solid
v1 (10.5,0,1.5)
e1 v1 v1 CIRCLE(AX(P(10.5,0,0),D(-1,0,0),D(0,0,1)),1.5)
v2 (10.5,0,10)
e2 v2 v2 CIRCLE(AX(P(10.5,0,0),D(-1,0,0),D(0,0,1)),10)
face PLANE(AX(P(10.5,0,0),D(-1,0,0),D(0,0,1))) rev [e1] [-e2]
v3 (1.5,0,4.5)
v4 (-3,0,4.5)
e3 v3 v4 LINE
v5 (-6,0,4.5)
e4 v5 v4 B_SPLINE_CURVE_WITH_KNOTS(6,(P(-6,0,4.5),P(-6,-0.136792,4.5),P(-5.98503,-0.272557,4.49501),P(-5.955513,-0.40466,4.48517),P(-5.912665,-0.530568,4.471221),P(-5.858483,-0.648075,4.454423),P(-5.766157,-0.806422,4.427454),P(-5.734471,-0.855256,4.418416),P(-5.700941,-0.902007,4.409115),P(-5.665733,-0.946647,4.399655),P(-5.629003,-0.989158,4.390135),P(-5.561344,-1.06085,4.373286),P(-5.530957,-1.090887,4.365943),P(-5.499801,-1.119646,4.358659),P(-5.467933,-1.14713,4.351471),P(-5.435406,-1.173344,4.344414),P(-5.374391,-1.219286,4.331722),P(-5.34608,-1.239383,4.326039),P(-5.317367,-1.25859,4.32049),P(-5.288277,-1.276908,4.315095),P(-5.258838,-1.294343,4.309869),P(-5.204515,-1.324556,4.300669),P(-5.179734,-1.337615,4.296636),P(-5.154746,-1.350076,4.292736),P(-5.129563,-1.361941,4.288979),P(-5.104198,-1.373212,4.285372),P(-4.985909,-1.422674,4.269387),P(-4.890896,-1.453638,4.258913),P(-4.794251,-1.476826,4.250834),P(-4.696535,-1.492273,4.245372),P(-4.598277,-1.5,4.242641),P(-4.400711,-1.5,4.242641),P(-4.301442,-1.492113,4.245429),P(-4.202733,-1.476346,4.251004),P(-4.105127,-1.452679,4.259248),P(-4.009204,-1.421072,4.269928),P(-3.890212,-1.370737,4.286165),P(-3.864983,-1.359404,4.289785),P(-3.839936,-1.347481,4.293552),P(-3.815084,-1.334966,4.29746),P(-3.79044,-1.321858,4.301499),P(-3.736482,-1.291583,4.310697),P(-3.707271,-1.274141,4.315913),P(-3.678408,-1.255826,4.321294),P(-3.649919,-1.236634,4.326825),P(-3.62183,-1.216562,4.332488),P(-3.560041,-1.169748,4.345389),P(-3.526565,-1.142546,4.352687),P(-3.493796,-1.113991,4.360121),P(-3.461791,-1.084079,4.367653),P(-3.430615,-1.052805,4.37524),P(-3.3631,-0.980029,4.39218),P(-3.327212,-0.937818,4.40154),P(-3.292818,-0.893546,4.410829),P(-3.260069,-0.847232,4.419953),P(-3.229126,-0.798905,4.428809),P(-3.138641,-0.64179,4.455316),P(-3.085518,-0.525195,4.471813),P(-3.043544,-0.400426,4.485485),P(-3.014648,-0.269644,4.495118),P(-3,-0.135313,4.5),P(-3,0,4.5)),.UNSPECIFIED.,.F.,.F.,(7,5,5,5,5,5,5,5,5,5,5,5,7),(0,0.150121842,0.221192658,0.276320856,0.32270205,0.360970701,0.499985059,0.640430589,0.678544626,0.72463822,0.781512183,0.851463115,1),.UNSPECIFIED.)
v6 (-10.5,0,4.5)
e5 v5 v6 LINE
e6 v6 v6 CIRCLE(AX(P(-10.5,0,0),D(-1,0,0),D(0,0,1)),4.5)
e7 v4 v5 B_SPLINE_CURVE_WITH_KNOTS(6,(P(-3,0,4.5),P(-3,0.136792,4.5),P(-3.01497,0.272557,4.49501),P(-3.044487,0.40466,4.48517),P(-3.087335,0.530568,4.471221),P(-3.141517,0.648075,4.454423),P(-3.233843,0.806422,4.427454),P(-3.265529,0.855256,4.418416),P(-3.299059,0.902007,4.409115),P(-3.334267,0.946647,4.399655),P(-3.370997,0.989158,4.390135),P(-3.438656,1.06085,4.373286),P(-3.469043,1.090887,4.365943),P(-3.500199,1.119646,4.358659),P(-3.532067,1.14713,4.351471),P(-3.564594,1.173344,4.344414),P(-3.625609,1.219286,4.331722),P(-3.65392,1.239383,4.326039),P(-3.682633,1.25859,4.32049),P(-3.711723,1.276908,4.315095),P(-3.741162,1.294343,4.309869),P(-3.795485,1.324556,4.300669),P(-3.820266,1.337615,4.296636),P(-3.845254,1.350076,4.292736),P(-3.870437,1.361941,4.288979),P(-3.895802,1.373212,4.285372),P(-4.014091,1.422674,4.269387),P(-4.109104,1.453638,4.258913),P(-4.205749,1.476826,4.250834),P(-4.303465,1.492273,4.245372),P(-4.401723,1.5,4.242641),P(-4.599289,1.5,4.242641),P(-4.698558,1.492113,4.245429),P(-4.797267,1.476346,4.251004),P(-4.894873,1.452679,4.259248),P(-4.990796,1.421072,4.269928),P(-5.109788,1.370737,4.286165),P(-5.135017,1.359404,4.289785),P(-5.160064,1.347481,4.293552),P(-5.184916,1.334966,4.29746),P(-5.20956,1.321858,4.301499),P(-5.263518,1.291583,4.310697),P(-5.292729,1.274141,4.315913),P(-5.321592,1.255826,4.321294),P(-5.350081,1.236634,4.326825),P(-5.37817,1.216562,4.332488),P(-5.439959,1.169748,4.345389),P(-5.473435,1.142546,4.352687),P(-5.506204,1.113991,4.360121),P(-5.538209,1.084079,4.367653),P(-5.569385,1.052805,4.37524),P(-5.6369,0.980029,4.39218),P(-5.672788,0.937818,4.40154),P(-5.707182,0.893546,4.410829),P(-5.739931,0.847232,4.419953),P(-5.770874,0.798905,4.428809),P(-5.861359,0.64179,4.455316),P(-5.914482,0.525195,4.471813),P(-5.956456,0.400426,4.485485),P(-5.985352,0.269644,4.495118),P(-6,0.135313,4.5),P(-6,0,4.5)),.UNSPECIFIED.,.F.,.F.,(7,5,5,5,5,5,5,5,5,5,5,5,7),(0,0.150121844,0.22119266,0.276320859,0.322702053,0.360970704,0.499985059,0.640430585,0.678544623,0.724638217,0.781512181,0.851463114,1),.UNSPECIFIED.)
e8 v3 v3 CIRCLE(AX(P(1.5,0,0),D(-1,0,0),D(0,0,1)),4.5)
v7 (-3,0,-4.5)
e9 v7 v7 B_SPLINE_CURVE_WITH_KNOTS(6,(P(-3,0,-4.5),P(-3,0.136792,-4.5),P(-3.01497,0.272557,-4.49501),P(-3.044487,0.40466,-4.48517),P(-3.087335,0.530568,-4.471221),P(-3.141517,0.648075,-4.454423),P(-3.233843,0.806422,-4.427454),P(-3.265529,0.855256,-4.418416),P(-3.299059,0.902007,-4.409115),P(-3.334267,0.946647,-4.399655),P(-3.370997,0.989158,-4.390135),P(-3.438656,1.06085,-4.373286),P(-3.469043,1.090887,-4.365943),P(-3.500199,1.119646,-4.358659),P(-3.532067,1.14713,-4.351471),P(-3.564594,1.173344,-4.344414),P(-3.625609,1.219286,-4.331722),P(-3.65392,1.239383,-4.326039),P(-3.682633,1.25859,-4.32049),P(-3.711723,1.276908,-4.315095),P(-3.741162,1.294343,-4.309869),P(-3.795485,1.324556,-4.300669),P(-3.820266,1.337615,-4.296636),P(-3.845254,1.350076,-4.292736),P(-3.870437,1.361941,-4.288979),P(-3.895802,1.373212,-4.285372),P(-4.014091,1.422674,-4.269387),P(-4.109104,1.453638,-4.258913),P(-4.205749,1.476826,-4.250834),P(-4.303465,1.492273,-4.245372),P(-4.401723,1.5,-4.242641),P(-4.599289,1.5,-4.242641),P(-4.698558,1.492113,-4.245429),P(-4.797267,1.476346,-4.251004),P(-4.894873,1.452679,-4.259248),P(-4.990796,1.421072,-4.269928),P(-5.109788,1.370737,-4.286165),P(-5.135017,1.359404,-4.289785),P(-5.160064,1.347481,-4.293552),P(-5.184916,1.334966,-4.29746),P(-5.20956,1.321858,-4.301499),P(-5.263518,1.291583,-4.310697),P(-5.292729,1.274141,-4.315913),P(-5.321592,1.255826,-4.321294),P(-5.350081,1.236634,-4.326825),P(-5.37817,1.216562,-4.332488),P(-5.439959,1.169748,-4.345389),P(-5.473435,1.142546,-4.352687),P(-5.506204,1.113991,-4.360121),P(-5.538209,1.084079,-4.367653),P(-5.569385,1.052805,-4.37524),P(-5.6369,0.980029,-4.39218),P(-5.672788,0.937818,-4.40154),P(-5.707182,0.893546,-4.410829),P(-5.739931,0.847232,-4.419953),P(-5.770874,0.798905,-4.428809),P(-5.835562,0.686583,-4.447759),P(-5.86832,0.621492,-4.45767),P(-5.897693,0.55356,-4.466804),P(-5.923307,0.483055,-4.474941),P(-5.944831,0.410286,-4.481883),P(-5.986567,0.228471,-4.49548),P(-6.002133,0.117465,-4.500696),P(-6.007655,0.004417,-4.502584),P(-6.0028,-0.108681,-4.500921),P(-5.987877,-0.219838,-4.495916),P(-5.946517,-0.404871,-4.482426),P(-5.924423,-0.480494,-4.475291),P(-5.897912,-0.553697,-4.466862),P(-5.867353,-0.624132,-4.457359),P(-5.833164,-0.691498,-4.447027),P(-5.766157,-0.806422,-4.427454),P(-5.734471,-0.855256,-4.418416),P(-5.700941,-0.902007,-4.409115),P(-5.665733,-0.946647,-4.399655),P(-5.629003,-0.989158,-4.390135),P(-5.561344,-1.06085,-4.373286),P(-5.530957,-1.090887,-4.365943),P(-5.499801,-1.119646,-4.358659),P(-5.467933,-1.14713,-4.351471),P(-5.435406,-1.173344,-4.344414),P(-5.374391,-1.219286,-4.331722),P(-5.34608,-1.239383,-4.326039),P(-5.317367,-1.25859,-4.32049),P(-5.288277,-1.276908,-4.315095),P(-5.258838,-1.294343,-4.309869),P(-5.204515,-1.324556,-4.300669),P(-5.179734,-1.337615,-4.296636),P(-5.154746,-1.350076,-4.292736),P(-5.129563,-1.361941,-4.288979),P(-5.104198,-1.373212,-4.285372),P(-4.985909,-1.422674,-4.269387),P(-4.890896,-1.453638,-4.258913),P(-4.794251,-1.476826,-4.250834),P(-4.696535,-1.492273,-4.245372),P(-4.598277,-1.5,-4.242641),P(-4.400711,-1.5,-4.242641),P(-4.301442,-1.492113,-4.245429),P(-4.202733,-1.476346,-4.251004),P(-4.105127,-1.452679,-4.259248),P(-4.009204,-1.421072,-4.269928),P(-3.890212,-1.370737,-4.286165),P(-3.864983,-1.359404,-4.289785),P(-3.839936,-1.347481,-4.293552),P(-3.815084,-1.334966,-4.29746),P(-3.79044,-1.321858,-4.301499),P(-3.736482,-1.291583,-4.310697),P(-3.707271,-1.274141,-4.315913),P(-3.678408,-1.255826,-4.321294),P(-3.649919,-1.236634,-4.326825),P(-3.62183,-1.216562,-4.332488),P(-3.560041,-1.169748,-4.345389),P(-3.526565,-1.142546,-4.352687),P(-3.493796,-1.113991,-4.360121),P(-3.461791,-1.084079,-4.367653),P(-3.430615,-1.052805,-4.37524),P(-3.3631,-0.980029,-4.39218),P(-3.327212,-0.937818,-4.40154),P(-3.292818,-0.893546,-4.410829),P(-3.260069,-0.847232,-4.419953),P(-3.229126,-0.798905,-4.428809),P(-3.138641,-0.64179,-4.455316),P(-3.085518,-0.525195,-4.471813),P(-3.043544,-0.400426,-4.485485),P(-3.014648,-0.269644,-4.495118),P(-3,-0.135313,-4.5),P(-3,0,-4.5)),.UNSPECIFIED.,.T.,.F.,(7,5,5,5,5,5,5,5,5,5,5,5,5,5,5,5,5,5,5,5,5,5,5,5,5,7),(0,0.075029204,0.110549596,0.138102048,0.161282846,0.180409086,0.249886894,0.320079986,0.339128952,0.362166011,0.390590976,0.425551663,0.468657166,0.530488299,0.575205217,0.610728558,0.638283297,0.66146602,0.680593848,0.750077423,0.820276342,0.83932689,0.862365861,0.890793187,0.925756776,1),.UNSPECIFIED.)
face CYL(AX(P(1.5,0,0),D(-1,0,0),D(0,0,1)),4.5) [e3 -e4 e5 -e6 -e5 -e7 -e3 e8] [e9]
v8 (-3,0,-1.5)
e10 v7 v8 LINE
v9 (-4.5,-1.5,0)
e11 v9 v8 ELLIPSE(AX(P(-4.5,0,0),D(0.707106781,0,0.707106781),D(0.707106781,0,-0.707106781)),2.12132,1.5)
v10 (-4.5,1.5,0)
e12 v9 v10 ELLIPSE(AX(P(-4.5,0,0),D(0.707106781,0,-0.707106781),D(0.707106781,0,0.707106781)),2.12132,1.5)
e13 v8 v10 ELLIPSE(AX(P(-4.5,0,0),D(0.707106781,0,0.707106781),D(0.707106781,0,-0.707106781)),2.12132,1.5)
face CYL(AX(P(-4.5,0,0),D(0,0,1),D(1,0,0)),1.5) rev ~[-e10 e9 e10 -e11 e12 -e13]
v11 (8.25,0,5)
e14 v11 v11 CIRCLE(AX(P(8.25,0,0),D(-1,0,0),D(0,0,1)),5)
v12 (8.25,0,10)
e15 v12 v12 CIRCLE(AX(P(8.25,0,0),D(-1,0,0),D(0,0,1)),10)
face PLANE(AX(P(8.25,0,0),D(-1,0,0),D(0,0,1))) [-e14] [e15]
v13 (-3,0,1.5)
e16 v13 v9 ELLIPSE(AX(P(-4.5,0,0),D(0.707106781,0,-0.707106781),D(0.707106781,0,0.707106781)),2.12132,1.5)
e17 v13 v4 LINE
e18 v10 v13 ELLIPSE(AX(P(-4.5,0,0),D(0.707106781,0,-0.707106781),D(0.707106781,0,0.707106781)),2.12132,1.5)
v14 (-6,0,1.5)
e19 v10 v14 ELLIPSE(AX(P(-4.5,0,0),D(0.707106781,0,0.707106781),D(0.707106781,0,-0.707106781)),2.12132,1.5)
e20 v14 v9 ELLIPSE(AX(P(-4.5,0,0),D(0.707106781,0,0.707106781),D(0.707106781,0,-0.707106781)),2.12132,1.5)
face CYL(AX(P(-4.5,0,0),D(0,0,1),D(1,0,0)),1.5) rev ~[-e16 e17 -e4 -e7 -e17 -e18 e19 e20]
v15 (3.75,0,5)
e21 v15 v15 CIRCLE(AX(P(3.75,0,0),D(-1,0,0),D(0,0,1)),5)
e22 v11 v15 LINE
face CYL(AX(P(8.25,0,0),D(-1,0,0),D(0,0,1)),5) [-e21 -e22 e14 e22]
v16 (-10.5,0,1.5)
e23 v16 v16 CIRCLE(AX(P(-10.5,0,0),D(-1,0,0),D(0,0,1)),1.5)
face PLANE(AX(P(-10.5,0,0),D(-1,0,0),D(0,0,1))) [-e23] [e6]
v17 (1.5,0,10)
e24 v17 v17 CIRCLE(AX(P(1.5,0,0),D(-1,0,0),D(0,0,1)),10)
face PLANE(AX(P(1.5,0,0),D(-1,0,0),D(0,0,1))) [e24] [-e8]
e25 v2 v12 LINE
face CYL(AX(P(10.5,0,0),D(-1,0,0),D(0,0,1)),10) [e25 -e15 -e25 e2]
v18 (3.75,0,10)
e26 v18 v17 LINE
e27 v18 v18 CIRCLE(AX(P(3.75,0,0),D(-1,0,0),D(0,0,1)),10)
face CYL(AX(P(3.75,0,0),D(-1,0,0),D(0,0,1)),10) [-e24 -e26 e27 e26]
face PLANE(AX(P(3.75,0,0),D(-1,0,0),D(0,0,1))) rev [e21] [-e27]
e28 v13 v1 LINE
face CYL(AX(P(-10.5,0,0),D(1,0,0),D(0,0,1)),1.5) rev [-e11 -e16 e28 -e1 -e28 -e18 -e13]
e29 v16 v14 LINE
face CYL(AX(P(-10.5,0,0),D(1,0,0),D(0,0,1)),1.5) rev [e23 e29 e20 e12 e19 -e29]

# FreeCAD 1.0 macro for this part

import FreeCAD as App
import Part
import Sketcher
from FreeCAD import Vector


def add_polygon(sketch, points):
    """Adds a closed chain of lines whose ends are joined by coincident constraints."""
    first, n = sketch.GeometryCount, len(points)
    for a, b in zip(points, points[1:] + points[:1]):
        sketch.addGeometry(Part.LineSegment(App.Vector(*a, 0), App.Vector(*b, 0)), False)
    for i in range(n):
        sketch.addConstraint(Sketcher.Constraint("Coincident", first + i, 2, first + (i + 1) % n, 1))

doc = App.newDocument("Part")
body = doc.addObject("PartDesign::Body", "Body")

sketch1 = body.newObject("Sketcher::SketchObject", "Sketch")
sketch1.AttachmentSupport = (doc.getObject("XZ_Plane"), [""])
sketch1.MapMode = "FlatFace"
add_polygon(sketch1, [(10.5, 10), (10.5, 1.5), (-10.5, 1.5), (-10.5, 4.5), (1.5, 4.5), (1.5, 10), (3.8, 10), (3.8, 5), (8.2, 5), (8.2, 10)])
sketch1.addConstraint(Sketcher.Constraint("Vertical", 0))
sketch1.addConstraint(Sketcher.Constraint("Horizontal", 1))
sketch1.addConstraint(Sketcher.Constraint("Vertical", 2))
sketch1.addConstraint(Sketcher.Constraint("Horizontal", 3))
sketch1.addConstraint(Sketcher.Constraint("Vertical", 4))
sketch1.addConstraint(Sketcher.Constraint("Horizontal", 5))
sketch1.addConstraint(Sketcher.Constraint("Vertical", 6))
sketch1.addConstraint(Sketcher.Constraint("Horizontal", 7))
sketch1.addConstraint(Sketcher.Constraint("Vertical", 8))
sketch1.addConstraint(Sketcher.Constraint("Horizontal", 9))
sketch1.addConstraint(Sketcher.Constraint("Horizontal", 5, 2, 8, 2))
sketch1.addConstraint(Sketcher.Constraint("Equal", 5, 9))
sketch1.addConstraint(Sketcher.Constraint("DistanceX", 1, 2, 1, 1, 21.0))
sketch1.addConstraint(Sketcher.Constraint("DistanceX", 3, 1, 3, 2, 12.0))
sketch1.addConstraint(Sketcher.Constraint("DistanceY", 2, 1, 2, 2, 3.0))
sketch1.addConstraint(Sketcher.Constraint("DistanceX", 7, 1, 7, 2, 4.5))
sketch1.addConstraint(Sketcher.Constraint("DistanceY", -1, 1, 4, 2, 10.0))
sketch1.addConstraint(Sketcher.Constraint("DistanceY", -1, 1, 2, 2, 4.5))
sketch1.addConstraint(Sketcher.Constraint("DistanceY", 6, 2, 6, 1, 5.0))
sketch1.addConstraint(Sketcher.Constraint("DistanceX", -1, 1, 0, 2, 10.5))
revolution = body.newObject("PartDesign::Revolution", "Revolution")
revolution.Profile = sketch1
revolution.ReferenceAxis = (sketch1, ["H_Axis"])
revolution.Angle = 360

sketch2 = body.newObject("Sketcher::SketchObject", "Sketch001")
sketch2.AttachmentSupport = (doc.getObject("XY_Plane"), [""])
sketch2.MapMode = "FlatFace"
sketch2.addGeometry(Part.Circle(Vector(-4.5, 0, 0), Vector(0, 0, 1), 1.5), False)
sketch2.addConstraint(Sketcher.Constraint("PointOnObject", 0, 3, -1))
sketch2.addConstraint(Sketcher.Constraint("Diameter", 0, 3.0))
sketch2.addConstraint(Sketcher.Constraint("DistanceX", 0, 3, -1, 1, 4.5))
pocket1 = body.newObject("PartDesign::Pocket", "Pocket")
pocket1.Profile = sketch2
pocket1.Type = "ThroughAll"
pocket1.Midplane = True

doc.recompute()
